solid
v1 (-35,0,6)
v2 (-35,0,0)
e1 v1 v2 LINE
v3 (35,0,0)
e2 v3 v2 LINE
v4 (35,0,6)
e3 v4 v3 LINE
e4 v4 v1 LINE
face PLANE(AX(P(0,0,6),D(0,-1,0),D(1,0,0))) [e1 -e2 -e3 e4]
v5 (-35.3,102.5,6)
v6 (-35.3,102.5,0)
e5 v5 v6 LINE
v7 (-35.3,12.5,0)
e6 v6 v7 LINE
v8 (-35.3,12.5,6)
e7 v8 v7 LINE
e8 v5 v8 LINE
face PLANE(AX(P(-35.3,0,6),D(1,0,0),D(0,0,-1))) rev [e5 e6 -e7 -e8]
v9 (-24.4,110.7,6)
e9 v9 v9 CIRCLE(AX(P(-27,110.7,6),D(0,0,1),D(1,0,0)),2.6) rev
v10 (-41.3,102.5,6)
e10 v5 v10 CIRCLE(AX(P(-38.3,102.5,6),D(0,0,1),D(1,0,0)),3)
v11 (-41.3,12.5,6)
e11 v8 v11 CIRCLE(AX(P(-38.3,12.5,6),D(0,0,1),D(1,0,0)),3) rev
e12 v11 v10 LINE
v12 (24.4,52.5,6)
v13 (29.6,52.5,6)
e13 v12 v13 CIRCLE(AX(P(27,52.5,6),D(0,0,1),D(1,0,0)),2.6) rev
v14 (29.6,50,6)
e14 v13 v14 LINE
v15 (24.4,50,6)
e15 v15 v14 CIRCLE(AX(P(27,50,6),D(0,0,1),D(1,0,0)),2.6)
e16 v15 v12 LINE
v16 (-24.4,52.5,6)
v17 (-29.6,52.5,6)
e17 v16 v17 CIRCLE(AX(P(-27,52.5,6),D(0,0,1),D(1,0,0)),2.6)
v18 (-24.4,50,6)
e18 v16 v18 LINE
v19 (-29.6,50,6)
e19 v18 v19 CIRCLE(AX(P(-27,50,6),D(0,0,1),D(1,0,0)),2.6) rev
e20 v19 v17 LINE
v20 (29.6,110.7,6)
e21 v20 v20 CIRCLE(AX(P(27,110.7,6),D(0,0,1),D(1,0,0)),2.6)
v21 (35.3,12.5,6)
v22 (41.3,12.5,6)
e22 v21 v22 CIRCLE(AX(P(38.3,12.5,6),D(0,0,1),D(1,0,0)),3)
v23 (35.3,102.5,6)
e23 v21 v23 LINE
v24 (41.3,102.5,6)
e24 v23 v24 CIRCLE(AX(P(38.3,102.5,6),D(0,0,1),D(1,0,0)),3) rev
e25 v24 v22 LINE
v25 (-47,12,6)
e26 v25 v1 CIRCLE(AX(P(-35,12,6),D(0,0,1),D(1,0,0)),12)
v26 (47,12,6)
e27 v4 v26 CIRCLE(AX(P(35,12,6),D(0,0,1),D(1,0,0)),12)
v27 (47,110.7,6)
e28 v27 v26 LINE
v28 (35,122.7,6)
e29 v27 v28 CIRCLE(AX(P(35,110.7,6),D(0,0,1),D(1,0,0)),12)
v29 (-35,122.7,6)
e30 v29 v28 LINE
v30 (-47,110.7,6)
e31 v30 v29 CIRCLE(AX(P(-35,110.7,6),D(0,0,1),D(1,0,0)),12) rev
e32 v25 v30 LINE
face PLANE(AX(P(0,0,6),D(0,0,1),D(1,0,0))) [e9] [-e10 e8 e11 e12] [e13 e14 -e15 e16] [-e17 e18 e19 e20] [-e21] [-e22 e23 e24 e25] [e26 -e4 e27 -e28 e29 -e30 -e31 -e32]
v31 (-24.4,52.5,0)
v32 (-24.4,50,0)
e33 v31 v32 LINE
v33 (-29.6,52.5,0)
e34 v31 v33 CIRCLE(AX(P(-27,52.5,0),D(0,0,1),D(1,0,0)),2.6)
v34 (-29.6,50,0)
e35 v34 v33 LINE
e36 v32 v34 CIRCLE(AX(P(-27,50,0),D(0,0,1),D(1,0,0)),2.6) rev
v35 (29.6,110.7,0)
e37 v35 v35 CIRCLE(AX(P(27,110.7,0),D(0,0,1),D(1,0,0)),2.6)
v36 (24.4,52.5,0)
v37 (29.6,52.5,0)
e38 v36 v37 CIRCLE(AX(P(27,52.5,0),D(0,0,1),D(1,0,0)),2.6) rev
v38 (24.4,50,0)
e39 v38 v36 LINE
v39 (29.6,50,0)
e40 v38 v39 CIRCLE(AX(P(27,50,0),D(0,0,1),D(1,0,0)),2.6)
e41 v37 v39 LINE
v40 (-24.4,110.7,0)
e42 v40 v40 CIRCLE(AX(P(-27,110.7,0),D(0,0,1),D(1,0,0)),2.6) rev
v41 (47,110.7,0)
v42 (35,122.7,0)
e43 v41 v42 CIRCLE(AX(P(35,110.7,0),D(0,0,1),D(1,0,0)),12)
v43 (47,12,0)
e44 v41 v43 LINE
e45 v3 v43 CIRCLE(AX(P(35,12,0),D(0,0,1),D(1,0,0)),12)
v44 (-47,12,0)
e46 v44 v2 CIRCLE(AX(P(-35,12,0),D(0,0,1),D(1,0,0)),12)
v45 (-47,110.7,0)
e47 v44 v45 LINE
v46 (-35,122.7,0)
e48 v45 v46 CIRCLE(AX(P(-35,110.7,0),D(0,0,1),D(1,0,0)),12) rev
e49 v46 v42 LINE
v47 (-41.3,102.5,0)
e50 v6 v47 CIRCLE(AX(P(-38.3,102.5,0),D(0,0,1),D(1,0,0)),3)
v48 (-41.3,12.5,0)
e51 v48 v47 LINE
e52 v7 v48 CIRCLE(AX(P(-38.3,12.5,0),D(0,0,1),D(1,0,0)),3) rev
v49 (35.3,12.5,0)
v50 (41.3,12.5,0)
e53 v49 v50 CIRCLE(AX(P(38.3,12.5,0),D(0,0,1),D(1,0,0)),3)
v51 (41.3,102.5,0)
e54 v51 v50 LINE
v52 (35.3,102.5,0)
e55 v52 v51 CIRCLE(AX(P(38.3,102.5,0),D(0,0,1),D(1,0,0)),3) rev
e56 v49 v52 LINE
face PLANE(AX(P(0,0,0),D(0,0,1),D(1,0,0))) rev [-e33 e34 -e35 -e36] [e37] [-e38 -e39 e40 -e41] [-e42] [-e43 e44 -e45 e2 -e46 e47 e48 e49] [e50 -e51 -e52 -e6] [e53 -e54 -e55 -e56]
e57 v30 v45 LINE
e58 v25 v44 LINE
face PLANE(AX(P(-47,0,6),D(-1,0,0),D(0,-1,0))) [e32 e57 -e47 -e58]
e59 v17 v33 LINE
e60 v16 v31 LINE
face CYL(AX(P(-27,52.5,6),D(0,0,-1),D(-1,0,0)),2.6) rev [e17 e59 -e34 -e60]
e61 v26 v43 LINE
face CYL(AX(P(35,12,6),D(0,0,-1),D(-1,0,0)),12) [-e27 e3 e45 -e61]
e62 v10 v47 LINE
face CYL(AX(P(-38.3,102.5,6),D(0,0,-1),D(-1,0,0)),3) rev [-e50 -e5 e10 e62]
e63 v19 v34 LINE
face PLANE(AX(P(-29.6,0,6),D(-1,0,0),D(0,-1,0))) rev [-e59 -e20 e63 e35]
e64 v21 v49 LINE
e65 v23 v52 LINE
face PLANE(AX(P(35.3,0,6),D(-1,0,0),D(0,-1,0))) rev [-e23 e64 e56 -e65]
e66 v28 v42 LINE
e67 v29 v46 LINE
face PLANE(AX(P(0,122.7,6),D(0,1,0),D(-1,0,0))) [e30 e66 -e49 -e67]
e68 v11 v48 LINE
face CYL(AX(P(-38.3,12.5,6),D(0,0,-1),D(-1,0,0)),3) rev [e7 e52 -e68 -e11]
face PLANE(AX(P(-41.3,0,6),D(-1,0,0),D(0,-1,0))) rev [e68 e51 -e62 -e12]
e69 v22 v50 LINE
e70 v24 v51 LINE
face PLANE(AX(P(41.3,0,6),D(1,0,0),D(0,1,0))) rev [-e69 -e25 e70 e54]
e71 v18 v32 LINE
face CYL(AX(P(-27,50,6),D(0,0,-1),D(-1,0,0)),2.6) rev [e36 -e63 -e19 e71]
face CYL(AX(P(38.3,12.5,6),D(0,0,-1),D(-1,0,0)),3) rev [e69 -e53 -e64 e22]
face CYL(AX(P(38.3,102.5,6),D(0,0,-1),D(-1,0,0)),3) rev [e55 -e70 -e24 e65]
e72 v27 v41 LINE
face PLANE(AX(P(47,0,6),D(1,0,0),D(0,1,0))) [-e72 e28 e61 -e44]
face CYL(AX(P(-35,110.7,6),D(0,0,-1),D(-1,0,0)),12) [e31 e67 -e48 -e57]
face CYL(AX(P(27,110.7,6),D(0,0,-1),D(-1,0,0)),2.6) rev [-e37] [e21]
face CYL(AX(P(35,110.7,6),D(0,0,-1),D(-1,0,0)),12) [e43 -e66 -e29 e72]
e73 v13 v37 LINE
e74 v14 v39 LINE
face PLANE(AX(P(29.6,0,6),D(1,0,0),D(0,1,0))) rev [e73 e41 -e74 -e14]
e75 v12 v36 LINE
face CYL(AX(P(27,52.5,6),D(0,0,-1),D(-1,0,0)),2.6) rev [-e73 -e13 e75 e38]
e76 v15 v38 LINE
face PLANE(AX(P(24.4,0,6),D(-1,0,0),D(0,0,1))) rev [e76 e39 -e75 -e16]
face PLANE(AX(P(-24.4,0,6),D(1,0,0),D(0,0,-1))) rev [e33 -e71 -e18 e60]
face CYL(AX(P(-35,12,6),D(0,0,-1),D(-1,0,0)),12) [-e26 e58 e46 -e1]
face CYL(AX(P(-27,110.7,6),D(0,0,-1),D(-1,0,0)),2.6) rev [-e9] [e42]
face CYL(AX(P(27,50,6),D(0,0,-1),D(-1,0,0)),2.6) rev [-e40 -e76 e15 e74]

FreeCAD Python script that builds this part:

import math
import FreeCAD as App
import Part
import Sketcher
Q = App.Units.Quantity

doc = App.newDocument("Part")
body = doc.addObject("PartDesign::Body", "Body")

# Sketch on XY plane
sketch1 = body.newObject("Sketcher::SketchObject", "Sketch")
sketch1.AttachmentSupport = (doc.getObject("XY_Plane"), [""])
sketch1.MapMode = "FlatFace"
sketch1.addGeometry(Part.LineSegment(App.Vector(-35, 0, 0), App.Vector(35, 0, 0)), False)
sketch1.addGeometry(Part.ArcOfCircle(Part.Circle(App.Vector(35, 12, 0), App.Vector(0, 0, 1), 12), math.radians(-90), math.radians(0)), False)
sketch1.addGeometry(Part.LineSegment(App.Vector(47, 12, 0), App.Vector(47, 110.7, 0)), False)
sketch1.addGeometry(Part.ArcOfCircle(Part.Circle(App.Vector(35, 110.7, 0), App.Vector(0, 0, 1), 12), math.radians(0), math.radians(90)), False)
sketch1.addGeometry(Part.LineSegment(App.Vector(35, 122.7, 0), App.Vector(-35, 122.7, 0)), False)
sketch1.addGeometry(Part.ArcOfCircle(Part.Circle(App.Vector(-35, 110.7, 0), App.Vector(0, 0, 1), 12), math.radians(90), math.radians(180)), False)
sketch1.addGeometry(Part.LineSegment(App.Vector(-47, 110.7, 0), App.Vector(-47, 12, 0)), False)
sketch1.addGeometry(Part.ArcOfCircle(Part.Circle(App.Vector(-35, 12, 0), App.Vector(0, 0, 1), 12), math.radians(-180), math.radians(-90)), False)
sketch1.addGeometry(Part.ArcOfCircle(Part.Circle(App.Vector(38.3, 12.5, 0), App.Vector(0, 0, 1), 3), math.radians(180), math.radians(360)), False)
sketch1.addGeometry(Part.LineSegment(App.Vector(35.3, 12.5, 0), App.Vector(35.3, 102.5, 0)), False)
sketch1.addGeometry(Part.ArcOfCircle(Part.Circle(App.Vector(38.3, 102.5, 0), App.Vector(0, 0, 1), 3), math.radians(0), math.radians(180)), False)
sketch1.addGeometry(Part.LineSegment(App.Vector(41.3, 102.5, 0), App.Vector(41.3, 12.5, 0)), False)
sketch1.addGeometry(Part.ArcOfCircle(Part.Circle(App.Vector(27, 52.5, 0), App.Vector(0, 0, 1), 2.6), math.radians(0), math.radians(180)), False)
sketch1.addGeometry(Part.LineSegment(App.Vector(29.6, 52.5, 0), App.Vector(29.6, 50, 0)), False)
sketch1.addGeometry(Part.ArcOfCircle(Part.Circle(App.Vector(27, 50, 0), App.Vector(0, 0, 1), 2.6), math.radians(180), math.radians(360)), False)
sketch1.addGeometry(Part.LineSegment(App.Vector(24.4, 50, 0), App.Vector(24.4, 52.5, 0)), False)
sketch1.addGeometry(Part.ArcOfCircle(Part.Circle(App.Vector(-27, 52.5, 0), App.Vector(0, 0, 1), 2.6), math.radians(0), math.radians(180)), False)
sketch1.addGeometry(Part.LineSegment(App.Vector(-24.4, 52.5, 0), App.Vector(-24.4, 50, 0)), False)
sketch1.addGeometry(Part.ArcOfCircle(Part.Circle(App.Vector(-27, 50, 0), App.Vector(0, 0, 1), 2.6), math.radians(180), math.radians(360)), False)
sketch1.addGeometry(Part.LineSegment(App.Vector(-29.6, 50, 0), App.Vector(-29.6, 52.5, 0)), False)
sketch1.addGeometry(Part.ArcOfCircle(Part.Circle(App.Vector(-38.3, 102.5, 0), App.Vector(0, 0, 1), 3), math.radians(0), math.radians(180)), False)
sketch1.addGeometry(Part.LineSegment(App.Vector(-35.3, 102.5, 0), App.Vector(-35.3, 12.5, 0)), False)
sketch1.addGeometry(Part.ArcOfCircle(Part.Circle(App.Vector(-38.3, 12.5, 0), App.Vector(0, 0, 1), 3), math.radians(180), math.radians(360)), False)
sketch1.addGeometry(Part.LineSegment(App.Vector(-41.3, 12.5, 0), App.Vector(-41.3, 102.5, 0)), False)
sketch1.addGeometry(Part.Circle(App.Vector(27, 110.7, 0), App.Vector(0, 0, 1), 2.6), False)
sketch1.addGeometry(Part.Circle(App.Vector(-27, 110.7, 0), App.Vector(0, 0, 1), 2.6), False)
sketch1.addConstraint(Sketcher.Constraint("Tangent", 0, 2, 1, 1))
sketch1.addConstraint(Sketcher.Constraint("Tangent", 1, 2, 2, 1))
sketch1.addConstraint(Sketcher.Constraint("Tangent", 2, 2, 3, 1))
sketch1.addConstraint(Sketcher.Constraint("Tangent", 3, 2, 4, 1))
sketch1.addConstraint(Sketcher.Constraint("Tangent", 4, 2, 5, 1))
sketch1.addConstraint(Sketcher.Constraint("Tangent", 5, 2, 6, 1))
sketch1.addConstraint(Sketcher.Constraint("Tangent", 6, 2, 7, 1))
sketch1.addConstraint(Sketcher.Constraint("Tangent", 7, 2, 0, 1))
sketch1.addConstraint(Sketcher.Constraint("Tangent", 8, 1, 9, 1))
sketch1.addConstraint(Sketcher.Constraint("Tangent", 9, 2, 10, 2))
sketch1.addConstraint(Sketcher.Constraint("Tangent", 10, 1, 11, 1))
sketch1.addConstraint(Sketcher.Constraint("Tangent", 11, 2, 8, 2))
sketch1.addConstraint(Sketcher.Constraint("Tangent", 12, 1, 13, 1))
sketch1.addConstraint(Sketcher.Constraint("Tangent", 13, 2, 14, 2))
sketch1.addConstraint(Sketcher.Constraint("Tangent", 14, 1, 15, 1))
sketch1.addConstraint(Sketcher.Constraint("Tangent", 15, 2, 12, 2))
sketch1.addConstraint(Sketcher.Constraint("Tangent", 16, 1, 17, 1))
sketch1.addConstraint(Sketcher.Constraint("Tangent", 17, 2, 18, 2))
sketch1.addConstraint(Sketcher.Constraint("Tangent", 18, 1, 19, 1))
sketch1.addConstraint(Sketcher.Constraint("Tangent", 19, 2, 16, 2))
sketch1.addConstraint(Sketcher.Constraint("Tangent", 20, 1, 21, 1))
sketch1.addConstraint(Sketcher.Constraint("Tangent", 21, 2, 22, 2))
sketch1.addConstraint(Sketcher.Constraint("Tangent", 22, 1, 23, 1))
sketch1.addConstraint(Sketcher.Constraint("Tangent", 23, 2, 20, 2))
sketch1.addConstraint(Sketcher.Constraint("Horizontal", 0))
sketch1.addConstraint(Sketcher.Constraint("Vertical", 2))
sketch1.addConstraint(Sketcher.Constraint("Horizontal", 4))
sketch1.addConstraint(Sketcher.Constraint("Vertical", 6))
sketch1.addConstraint(Sketcher.Constraint("Vertical", 9))
sketch1.addConstraint(Sketcher.Constraint("Vertical", 11))
sketch1.addConstraint(Sketcher.Constraint("Vertical", 13))
sketch1.addConstraint(Sketcher.Constraint("Vertical", 15))
sketch1.addConstraint(Sketcher.Constraint("Vertical", 17))
sketch1.addConstraint(Sketcher.Constraint("Vertical", 19))
sketch1.addConstraint(Sketcher.Constraint("Vertical", 21))
sketch1.addConstraint(Sketcher.Constraint("Vertical", 23))
sketch1.addConstraint(Sketcher.Constraint("Equal", 1, 3))
sketch1.addConstraint(Sketcher.Constraint("Equal", 3, 5))
sketch1.addConstraint(Sketcher.Constraint("Equal", 5, 7))
sketch1.addConstraint(Sketcher.Constraint("Equal", 14, 16))
sketch1.addConstraint(Sketcher.Constraint("Equal", 10, 20))
sketch1.addConstraint(Sketcher.Constraint("Equal", 18, 24))
sketch1.addConstraint(Sketcher.Constraint("Equal", 24, 25))
sketch1.addConstraint(Sketcher.Constraint("Symmetric", 0, 2, 7, 2, -1, 1))
sketch1.addConstraint(Sketcher.Constraint("Symmetric", 12, 3, 16, 3, -2))
sketch1.addConstraint(Sketcher.Constraint("Symmetric", 10, 3, 20, 3, -2))
sketch1.addConstraint(Sketcher.Constraint("Symmetric", 24, 3, 25, 3, -2))
sketch1.addConstraint(Sketcher.Constraint("Horizontal", 14, 3, 18, 3))
sketch1.addConstraint(Sketcher.Constraint("Horizontal", 8, 3, 22, 3))
sketch1.addConstraint(Sketcher.Constraint("Horizontal", 5, 3, 24, 3))
sketch1.addConstraint(Sketcher.Constraint("Vertical", 14, 3, 24, 3))
sketch1.addConstraint(Sketcher.Constraint("Radius", 1, Q("12 mm")))
sketch1.addConstraint(Sketcher.Constraint("Radius", 8, Q("3 mm")))
sketch1.addConstraint(Sketcher.Constraint("Diameter", 24, Q("5.2 mm")))
sketch1.addConstraint(Sketcher.Constraint("DistanceX", 0, 1, 0, 2, Q("70 mm")))
sketch1.addConstraint(Sketcher.Constraint("DistanceY", 9, 1, 9, 2, Q("90 mm")))
sketch1.addConstraint(Sketcher.Constraint("DistanceY", 2, 1, 2, 2, Q("98.7 mm")))
sketch1.addConstraint(Sketcher.Constraint("DistanceY", 13, 2, 13, 1, Q("2.5 mm")))
sketch1.addConstraint(Sketcher.Constraint("DistanceX", -1, 1, 12, 3, Q("27 mm")))
sketch1.addConstraint(Sketcher.Constraint("DistanceY", -1, 1, 14, 3, Q("50 mm")))
sketch1.addConstraint(Sketcher.Constraint("DistanceY", 8, 3, 12, 3, Q("40 mm")))
sketch1.addConstraint(Sketcher.Constraint("DistanceX", -1, 1, 8, 3, Q("38.3 mm")))
pad1 = body.newObject("PartDesign::Pad", "Pad")
pad1.Profile = sketch1
pad1.Length = 6

doc.recompute()
